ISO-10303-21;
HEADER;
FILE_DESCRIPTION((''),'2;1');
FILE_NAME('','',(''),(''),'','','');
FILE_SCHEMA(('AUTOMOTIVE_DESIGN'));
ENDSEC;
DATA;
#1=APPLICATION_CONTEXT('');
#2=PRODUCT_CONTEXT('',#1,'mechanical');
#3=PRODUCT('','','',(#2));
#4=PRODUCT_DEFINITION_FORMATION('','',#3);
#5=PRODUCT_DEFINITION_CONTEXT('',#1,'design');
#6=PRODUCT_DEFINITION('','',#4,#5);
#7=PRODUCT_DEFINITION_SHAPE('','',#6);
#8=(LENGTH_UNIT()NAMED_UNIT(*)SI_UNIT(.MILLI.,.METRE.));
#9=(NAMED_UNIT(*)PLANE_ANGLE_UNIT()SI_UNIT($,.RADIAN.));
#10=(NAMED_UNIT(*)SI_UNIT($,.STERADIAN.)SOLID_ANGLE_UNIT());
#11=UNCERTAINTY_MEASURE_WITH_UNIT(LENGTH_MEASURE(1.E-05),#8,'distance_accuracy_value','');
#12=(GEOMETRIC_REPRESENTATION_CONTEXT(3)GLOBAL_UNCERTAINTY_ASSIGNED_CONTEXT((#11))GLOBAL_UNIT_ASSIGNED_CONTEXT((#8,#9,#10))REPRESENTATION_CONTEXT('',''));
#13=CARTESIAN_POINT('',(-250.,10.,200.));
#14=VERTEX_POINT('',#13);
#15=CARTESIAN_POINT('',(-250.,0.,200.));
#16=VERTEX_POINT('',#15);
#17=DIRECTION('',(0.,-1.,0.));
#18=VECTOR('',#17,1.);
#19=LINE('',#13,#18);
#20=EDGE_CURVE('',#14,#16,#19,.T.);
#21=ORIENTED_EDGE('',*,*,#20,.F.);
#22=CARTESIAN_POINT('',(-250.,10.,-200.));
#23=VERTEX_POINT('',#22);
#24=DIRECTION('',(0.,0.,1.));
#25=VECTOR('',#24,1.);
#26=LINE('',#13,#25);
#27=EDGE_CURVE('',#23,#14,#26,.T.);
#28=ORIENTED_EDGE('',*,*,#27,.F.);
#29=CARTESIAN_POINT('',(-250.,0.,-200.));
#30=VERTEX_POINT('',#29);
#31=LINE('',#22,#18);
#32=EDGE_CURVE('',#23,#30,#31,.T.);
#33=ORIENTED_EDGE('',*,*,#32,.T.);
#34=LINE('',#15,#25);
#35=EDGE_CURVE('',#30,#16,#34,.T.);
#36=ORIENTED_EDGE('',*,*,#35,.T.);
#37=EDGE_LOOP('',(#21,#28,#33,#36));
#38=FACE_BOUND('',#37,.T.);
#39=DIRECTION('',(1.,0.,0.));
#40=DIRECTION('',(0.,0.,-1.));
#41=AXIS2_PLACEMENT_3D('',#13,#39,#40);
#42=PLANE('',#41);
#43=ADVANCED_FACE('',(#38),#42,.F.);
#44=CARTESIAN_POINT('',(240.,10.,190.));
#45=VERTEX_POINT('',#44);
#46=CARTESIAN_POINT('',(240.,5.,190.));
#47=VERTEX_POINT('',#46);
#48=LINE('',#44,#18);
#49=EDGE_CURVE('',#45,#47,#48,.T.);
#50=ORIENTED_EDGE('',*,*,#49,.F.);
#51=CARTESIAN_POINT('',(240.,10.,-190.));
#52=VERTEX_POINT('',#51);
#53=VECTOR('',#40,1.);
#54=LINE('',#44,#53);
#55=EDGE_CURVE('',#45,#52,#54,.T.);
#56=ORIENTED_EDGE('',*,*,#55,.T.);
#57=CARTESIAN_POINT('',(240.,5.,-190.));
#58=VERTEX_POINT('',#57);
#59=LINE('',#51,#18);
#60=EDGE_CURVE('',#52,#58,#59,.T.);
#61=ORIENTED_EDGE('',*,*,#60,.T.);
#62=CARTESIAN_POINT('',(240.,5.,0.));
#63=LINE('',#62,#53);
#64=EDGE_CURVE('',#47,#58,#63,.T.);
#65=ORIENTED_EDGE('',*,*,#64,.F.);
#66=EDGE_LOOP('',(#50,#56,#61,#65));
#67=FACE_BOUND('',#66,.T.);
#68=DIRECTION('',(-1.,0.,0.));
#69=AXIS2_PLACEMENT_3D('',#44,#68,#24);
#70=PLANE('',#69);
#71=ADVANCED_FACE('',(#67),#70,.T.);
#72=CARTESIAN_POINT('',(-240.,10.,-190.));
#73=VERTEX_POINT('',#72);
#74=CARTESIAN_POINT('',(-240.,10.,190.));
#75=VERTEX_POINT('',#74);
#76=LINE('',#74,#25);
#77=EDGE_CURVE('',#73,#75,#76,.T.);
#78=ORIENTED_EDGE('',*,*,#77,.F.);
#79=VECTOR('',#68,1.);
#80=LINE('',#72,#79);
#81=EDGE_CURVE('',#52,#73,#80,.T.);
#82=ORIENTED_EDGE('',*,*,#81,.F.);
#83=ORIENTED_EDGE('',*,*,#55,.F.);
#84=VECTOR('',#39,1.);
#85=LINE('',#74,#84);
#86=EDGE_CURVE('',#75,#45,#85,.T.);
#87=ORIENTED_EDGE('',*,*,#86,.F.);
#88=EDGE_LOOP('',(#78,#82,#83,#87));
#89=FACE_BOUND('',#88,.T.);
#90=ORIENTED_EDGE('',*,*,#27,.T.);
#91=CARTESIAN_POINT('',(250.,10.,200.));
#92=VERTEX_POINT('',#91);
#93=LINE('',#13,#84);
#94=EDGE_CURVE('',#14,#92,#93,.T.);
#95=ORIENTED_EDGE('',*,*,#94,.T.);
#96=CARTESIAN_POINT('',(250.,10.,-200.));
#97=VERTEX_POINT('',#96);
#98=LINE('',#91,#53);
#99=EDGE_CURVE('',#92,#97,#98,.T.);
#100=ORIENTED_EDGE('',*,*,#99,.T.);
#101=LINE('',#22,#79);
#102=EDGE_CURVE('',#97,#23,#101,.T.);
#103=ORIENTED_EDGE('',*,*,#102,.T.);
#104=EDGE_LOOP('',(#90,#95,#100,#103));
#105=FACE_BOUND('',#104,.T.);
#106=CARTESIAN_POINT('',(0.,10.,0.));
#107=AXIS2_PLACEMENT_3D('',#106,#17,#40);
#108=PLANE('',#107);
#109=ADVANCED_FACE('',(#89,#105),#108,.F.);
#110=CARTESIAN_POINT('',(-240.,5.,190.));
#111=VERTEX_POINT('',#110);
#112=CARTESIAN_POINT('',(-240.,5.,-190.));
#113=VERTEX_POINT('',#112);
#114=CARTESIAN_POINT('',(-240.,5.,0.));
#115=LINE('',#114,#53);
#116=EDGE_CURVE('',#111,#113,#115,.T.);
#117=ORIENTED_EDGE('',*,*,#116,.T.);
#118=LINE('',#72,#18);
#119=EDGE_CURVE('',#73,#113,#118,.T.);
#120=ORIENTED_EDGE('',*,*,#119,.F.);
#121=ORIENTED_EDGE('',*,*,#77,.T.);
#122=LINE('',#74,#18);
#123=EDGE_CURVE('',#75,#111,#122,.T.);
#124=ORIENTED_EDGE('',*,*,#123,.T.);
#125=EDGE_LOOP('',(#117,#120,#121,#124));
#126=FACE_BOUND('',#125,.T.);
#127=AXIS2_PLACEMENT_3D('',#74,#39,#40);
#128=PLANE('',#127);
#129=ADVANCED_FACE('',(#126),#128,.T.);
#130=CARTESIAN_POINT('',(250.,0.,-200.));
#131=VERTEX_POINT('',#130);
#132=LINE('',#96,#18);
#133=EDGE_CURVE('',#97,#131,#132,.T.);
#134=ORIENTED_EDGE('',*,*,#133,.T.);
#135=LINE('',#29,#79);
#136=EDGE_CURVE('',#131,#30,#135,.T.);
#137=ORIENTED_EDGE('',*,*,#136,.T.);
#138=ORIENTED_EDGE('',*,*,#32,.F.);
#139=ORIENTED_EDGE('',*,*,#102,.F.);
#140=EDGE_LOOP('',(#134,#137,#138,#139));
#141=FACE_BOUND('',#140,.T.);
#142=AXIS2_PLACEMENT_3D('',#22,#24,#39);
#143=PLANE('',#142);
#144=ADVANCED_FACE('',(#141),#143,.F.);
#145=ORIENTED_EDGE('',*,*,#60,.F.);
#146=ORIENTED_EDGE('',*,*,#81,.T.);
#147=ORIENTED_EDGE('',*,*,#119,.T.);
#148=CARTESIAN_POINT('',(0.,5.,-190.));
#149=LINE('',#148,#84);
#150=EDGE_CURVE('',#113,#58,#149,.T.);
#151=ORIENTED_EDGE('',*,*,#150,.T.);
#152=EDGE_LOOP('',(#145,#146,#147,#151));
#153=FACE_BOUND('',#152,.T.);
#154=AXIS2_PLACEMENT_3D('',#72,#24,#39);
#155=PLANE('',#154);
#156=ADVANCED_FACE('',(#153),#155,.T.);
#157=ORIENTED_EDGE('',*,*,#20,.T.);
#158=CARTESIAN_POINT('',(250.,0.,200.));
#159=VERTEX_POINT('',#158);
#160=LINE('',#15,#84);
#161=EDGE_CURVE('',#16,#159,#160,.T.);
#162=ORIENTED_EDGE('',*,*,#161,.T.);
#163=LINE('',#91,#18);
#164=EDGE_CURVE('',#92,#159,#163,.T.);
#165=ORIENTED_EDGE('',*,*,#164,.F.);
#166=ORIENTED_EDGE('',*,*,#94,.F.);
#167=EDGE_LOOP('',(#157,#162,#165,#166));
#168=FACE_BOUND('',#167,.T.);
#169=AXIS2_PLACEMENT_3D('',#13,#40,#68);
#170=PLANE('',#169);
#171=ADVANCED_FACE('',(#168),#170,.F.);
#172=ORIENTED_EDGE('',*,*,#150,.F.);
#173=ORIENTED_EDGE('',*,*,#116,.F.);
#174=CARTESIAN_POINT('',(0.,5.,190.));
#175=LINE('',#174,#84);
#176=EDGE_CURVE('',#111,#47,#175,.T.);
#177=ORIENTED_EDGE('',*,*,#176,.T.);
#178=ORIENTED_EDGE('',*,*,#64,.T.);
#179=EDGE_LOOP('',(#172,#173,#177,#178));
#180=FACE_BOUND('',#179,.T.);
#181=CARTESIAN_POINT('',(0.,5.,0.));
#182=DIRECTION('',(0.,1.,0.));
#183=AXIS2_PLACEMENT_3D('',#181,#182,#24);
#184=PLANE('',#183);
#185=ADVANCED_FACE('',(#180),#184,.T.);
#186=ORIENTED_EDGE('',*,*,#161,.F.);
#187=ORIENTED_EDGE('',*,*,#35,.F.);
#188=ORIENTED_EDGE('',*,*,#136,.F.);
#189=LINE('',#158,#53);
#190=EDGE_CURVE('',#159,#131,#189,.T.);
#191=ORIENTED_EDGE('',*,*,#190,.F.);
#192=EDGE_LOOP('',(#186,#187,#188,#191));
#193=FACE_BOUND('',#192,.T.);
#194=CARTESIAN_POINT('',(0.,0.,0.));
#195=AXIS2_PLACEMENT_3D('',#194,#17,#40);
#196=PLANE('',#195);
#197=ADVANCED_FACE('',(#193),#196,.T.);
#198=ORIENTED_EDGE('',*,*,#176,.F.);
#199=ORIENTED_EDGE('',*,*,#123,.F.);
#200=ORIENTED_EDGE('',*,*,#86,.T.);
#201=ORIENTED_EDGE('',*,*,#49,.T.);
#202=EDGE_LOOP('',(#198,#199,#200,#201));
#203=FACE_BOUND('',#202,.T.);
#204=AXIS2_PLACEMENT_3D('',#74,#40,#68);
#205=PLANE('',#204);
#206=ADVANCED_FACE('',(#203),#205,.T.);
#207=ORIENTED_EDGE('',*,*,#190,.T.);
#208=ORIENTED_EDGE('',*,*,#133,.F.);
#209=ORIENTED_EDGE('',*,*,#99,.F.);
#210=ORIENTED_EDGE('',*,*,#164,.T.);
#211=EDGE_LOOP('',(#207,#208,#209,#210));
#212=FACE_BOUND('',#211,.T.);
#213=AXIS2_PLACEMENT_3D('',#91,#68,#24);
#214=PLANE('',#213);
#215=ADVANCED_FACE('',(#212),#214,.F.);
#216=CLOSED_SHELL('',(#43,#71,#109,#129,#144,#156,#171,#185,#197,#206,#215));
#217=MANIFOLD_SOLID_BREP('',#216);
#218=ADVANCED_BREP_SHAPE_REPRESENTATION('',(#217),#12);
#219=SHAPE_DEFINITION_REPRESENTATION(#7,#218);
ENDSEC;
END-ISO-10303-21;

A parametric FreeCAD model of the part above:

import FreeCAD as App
import Part
import Sketcher

V = App.Vector


def add_polygon(sketch, points):
    """Adds a closed chain of lines whose ends are joined by coincident constraints."""
    first, n = sketch.GeometryCount, len(points)
    for a, b in zip(points, points[1:] + points[:1]):
        sketch.addGeometry(Part.LineSegment(App.Vector(*a, 0), App.Vector(*b, 0)), False)
    for i in range(n):
        sketch.addConstraint(Sketcher.Constraint("Coincident", first + i, 2, first + (i + 1) % n, 1))

doc = App.newDocument("Part")
body = doc.addObject("PartDesign::Body", "Body")

sketch1 = body.newObject("Sketcher::SketchObject", "Sketch")
sketch1.AttachmentSupport = (doc.getObject("XZ_Plane"), [""])
sketch1.MapMode = "FlatFace"
add_polygon(sketch1, [(-250, -200), (-250, 200), (250, 200), (250, -200)])
add_polygon(sketch1, [(240, 190), (-240, 190), (-240, -190), (240, -190)])
sketch1.addConstraint(Sketcher.Constraint("Vertical", 0))
sketch1.addConstraint(Sketcher.Constraint("Horizontal", 1))
sketch1.addConstraint(Sketcher.Constraint("Vertical", 2))
sketch1.addConstraint(Sketcher.Constraint("Horizontal", 3))
sketch1.addConstraint(Sketcher.Constraint("Horizontal", 4))
sketch1.addConstraint(Sketcher.Constraint("Vertical", 5))
sketch1.addConstraint(Sketcher.Constraint("Horizontal", 6))
sketch1.addConstraint(Sketcher.Constraint("Vertical", 7))
sketch1.addConstraint(Sketcher.Constraint("Symmetric", 0, 2, 2, 2, -1, 1))
sketch1.addConstraint(Sketcher.Constraint("Symmetric", 4, 2, 6, 2, -1, 1))
sketch1.addConstraint(Sketcher.Constraint("DistanceX", 1, 1, 1, 2, 500.0))
sketch1.addConstraint(Sketcher.Constraint("DistanceX", 4, 2, 4, 1, 480.0))
sketch1.addConstraint(Sketcher.Constraint("DistanceY", 0, 1, 0, 2, 400.0))
sketch1.addConstraint(Sketcher.Constraint("DistanceY", 5, 2, 5, 1, 380.0))
pad1 = body.newObject("PartDesign::Pad", "Pad")
pad1.Profile = sketch1
pad1.Length = 10
pad1.Reversed = True

sketch2 = body.newObject("Sketcher::SketchObject", "Sketch001")
sketch2.AttachmentSupport = (doc.getObject("XZ_Plane"), [""])
sketch2.MapMode = "FlatFace"
add_polygon(sketch2, [(-240, -190), (-240, 190), (240, 190), (240, -190)])
sketch2.addConstraint(Sketcher.Constraint("Vertical", 0))
sketch2.addConstraint(Sketcher.Constraint("Horizontal", 1))
sketch2.addConstraint(Sketcher.Constraint("Vertical", 2))
sketch2.addConstraint(Sketcher.Constraint("Horizontal", 3))
sketch2.addConstraint(Sketcher.Constraint("Symmetric", 0, 2, 2, 2, -1, 1))
sketch2.addConstraint(Sketcher.Constraint("DistanceX", 1, 1, 1, 2, 480.0))
sketch2.addConstraint(Sketcher.Constraint("DistanceY", 0, 1, 0, 2, 380.0))
pad2 = body.newObject("PartDesign::Pad", "Pad001")
pad2.Profile = sketch2
pad2.Length = 5
pad2.Reversed = True

doc.recompute()
